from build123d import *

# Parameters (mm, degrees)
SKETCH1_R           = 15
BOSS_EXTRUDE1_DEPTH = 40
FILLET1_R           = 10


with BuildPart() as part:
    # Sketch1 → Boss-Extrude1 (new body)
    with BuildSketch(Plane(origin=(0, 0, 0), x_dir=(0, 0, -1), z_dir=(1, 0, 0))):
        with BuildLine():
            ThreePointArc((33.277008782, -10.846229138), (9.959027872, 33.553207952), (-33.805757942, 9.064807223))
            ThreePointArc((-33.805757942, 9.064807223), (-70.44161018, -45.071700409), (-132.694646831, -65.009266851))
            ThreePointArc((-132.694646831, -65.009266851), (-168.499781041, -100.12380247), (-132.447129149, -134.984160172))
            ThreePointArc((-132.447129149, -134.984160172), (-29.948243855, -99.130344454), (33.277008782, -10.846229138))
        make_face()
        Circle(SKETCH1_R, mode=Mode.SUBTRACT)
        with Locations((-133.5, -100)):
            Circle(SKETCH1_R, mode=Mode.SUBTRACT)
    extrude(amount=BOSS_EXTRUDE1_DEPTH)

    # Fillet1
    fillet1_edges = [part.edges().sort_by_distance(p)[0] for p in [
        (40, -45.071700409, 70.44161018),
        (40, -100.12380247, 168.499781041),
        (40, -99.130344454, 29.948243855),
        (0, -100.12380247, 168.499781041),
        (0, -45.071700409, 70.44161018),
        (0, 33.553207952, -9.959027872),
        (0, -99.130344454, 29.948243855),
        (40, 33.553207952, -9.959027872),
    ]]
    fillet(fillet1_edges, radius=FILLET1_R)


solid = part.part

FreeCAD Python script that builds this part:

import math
import FreeCAD as App
import Part
import Sketcher

V = App.Vector


def edges_at(feature, points):
    """Names of the edges that pass closest to the given points."""
    edges = feature.Shape.Edges
    near = lambda p: min(range(len(edges)), key=lambda i: edges[i].distToShape(Part.Vertex(*p))[0])
    return sorted({f"Edge{near(p) + 1}" for p in points})

doc = App.newDocument("Part")
body = doc.addObject("PartDesign::Body", "Body")

sketch1 = body.newObject("Sketcher::SketchObject", "Sketch")
sketch1.AttachmentSupport = (doc.getObject("YZ_Plane"), [""])
sketch1.MapMode = "FlatFace"
sketch1.addGeometry(Part.ArcOfCircle(Part.Circle(V(0, 0, 0), V(0, 0, 1), 35), math.radians(-108), math.radians(75)), False)
sketch1.addGeometry(Part.ArcOfCircle(Part.Circle(V(35, 130, 0), V(0, 0, 1), 100), math.radians(179), math.radians(255)), False)
sketch1.addGeometry(Part.ArcOfCircle(Part.Circle(V(-100, 134, 0), V(0, 0, 1), 35), math.radians(-1), math.radians(182)), False)
sketch1.addGeometry(Part.ArcOfCircle(Part.Circle(V(45, 138, 0), V(0, 0, 1), 180), math.radians(-178), math.radians(-108)), False)
sketch1.addGeometry(Part.Circle(V(-100, 134, 0), V(0, 0, 1), 15), False)
sketch1.addGeometry(Part.Circle(V(0, 0, 0), V(0, 0, 1), 15), False)
sketch1.addConstraint(Sketcher.Constraint("Tangent", 0, 2, 1, 2))
sketch1.addConstraint(Sketcher.Constraint("Tangent", 1, 1, 2, 1))
sketch1.addConstraint(Sketcher.Constraint("Tangent", 2, 2, 3, 1))
sketch1.addConstraint(Sketcher.Constraint("Tangent", 3, 2, 0, 1))
sketch1.addConstraint(Sketcher.Constraint("Coincident", 0, 3, -1, 1))
sketch1.addConstraint(Sketcher.Constraint("Coincident", 5, 3, -1, 1))
sketch1.addConstraint(Sketcher.Constraint("Coincident", 4, 3, 2, 3))
sketch1.addConstraint(Sketcher.Constraint("Equal", 0, 2))
sketch1.addConstraint(Sketcher.Constraint("Equal", 4, 5))
sketch1.addConstraint(Sketcher.Constraint("Diameter", 4, 30.0))
sketch1.addConstraint(Sketcher.Constraint("Radius", 0, 35.0))
sketch1.addConstraint(Sketcher.Constraint("Radius", 1, 100.0))
sketch1.addConstraint(Sketcher.Constraint("Radius", 3, 180.0))
sketch1.addConstraint(Sketcher.Constraint("DistanceX", 2, 3, -1, 1, 100.0))
sketch1.addConstraint(Sketcher.Constraint("DistanceY", -1, 1, 2, 3, 133.5))
pad1 = body.newObject("PartDesign::Pad", "Pad")
pad1.Profile = sketch1
pad1.Length = 40
doc.recompute()

fillet = body.newObject("PartDesign::Fillet", "Fillet")
fillet.Base = (pad1, edges_at(pad1, [
    (40, -45.072, 70.442),
    (40, -100.124, 168.5),
    (40, -99.13, 29.948),
    (0, -100.124, 168.5),
    (0, -45.072, 70.442),
    (0, 33.553, -9.959),
    (0, -99.13, 29.948),
    (40, 33.553, -9.959),
]))
fillet.Radius = 10

doc.recompute()
